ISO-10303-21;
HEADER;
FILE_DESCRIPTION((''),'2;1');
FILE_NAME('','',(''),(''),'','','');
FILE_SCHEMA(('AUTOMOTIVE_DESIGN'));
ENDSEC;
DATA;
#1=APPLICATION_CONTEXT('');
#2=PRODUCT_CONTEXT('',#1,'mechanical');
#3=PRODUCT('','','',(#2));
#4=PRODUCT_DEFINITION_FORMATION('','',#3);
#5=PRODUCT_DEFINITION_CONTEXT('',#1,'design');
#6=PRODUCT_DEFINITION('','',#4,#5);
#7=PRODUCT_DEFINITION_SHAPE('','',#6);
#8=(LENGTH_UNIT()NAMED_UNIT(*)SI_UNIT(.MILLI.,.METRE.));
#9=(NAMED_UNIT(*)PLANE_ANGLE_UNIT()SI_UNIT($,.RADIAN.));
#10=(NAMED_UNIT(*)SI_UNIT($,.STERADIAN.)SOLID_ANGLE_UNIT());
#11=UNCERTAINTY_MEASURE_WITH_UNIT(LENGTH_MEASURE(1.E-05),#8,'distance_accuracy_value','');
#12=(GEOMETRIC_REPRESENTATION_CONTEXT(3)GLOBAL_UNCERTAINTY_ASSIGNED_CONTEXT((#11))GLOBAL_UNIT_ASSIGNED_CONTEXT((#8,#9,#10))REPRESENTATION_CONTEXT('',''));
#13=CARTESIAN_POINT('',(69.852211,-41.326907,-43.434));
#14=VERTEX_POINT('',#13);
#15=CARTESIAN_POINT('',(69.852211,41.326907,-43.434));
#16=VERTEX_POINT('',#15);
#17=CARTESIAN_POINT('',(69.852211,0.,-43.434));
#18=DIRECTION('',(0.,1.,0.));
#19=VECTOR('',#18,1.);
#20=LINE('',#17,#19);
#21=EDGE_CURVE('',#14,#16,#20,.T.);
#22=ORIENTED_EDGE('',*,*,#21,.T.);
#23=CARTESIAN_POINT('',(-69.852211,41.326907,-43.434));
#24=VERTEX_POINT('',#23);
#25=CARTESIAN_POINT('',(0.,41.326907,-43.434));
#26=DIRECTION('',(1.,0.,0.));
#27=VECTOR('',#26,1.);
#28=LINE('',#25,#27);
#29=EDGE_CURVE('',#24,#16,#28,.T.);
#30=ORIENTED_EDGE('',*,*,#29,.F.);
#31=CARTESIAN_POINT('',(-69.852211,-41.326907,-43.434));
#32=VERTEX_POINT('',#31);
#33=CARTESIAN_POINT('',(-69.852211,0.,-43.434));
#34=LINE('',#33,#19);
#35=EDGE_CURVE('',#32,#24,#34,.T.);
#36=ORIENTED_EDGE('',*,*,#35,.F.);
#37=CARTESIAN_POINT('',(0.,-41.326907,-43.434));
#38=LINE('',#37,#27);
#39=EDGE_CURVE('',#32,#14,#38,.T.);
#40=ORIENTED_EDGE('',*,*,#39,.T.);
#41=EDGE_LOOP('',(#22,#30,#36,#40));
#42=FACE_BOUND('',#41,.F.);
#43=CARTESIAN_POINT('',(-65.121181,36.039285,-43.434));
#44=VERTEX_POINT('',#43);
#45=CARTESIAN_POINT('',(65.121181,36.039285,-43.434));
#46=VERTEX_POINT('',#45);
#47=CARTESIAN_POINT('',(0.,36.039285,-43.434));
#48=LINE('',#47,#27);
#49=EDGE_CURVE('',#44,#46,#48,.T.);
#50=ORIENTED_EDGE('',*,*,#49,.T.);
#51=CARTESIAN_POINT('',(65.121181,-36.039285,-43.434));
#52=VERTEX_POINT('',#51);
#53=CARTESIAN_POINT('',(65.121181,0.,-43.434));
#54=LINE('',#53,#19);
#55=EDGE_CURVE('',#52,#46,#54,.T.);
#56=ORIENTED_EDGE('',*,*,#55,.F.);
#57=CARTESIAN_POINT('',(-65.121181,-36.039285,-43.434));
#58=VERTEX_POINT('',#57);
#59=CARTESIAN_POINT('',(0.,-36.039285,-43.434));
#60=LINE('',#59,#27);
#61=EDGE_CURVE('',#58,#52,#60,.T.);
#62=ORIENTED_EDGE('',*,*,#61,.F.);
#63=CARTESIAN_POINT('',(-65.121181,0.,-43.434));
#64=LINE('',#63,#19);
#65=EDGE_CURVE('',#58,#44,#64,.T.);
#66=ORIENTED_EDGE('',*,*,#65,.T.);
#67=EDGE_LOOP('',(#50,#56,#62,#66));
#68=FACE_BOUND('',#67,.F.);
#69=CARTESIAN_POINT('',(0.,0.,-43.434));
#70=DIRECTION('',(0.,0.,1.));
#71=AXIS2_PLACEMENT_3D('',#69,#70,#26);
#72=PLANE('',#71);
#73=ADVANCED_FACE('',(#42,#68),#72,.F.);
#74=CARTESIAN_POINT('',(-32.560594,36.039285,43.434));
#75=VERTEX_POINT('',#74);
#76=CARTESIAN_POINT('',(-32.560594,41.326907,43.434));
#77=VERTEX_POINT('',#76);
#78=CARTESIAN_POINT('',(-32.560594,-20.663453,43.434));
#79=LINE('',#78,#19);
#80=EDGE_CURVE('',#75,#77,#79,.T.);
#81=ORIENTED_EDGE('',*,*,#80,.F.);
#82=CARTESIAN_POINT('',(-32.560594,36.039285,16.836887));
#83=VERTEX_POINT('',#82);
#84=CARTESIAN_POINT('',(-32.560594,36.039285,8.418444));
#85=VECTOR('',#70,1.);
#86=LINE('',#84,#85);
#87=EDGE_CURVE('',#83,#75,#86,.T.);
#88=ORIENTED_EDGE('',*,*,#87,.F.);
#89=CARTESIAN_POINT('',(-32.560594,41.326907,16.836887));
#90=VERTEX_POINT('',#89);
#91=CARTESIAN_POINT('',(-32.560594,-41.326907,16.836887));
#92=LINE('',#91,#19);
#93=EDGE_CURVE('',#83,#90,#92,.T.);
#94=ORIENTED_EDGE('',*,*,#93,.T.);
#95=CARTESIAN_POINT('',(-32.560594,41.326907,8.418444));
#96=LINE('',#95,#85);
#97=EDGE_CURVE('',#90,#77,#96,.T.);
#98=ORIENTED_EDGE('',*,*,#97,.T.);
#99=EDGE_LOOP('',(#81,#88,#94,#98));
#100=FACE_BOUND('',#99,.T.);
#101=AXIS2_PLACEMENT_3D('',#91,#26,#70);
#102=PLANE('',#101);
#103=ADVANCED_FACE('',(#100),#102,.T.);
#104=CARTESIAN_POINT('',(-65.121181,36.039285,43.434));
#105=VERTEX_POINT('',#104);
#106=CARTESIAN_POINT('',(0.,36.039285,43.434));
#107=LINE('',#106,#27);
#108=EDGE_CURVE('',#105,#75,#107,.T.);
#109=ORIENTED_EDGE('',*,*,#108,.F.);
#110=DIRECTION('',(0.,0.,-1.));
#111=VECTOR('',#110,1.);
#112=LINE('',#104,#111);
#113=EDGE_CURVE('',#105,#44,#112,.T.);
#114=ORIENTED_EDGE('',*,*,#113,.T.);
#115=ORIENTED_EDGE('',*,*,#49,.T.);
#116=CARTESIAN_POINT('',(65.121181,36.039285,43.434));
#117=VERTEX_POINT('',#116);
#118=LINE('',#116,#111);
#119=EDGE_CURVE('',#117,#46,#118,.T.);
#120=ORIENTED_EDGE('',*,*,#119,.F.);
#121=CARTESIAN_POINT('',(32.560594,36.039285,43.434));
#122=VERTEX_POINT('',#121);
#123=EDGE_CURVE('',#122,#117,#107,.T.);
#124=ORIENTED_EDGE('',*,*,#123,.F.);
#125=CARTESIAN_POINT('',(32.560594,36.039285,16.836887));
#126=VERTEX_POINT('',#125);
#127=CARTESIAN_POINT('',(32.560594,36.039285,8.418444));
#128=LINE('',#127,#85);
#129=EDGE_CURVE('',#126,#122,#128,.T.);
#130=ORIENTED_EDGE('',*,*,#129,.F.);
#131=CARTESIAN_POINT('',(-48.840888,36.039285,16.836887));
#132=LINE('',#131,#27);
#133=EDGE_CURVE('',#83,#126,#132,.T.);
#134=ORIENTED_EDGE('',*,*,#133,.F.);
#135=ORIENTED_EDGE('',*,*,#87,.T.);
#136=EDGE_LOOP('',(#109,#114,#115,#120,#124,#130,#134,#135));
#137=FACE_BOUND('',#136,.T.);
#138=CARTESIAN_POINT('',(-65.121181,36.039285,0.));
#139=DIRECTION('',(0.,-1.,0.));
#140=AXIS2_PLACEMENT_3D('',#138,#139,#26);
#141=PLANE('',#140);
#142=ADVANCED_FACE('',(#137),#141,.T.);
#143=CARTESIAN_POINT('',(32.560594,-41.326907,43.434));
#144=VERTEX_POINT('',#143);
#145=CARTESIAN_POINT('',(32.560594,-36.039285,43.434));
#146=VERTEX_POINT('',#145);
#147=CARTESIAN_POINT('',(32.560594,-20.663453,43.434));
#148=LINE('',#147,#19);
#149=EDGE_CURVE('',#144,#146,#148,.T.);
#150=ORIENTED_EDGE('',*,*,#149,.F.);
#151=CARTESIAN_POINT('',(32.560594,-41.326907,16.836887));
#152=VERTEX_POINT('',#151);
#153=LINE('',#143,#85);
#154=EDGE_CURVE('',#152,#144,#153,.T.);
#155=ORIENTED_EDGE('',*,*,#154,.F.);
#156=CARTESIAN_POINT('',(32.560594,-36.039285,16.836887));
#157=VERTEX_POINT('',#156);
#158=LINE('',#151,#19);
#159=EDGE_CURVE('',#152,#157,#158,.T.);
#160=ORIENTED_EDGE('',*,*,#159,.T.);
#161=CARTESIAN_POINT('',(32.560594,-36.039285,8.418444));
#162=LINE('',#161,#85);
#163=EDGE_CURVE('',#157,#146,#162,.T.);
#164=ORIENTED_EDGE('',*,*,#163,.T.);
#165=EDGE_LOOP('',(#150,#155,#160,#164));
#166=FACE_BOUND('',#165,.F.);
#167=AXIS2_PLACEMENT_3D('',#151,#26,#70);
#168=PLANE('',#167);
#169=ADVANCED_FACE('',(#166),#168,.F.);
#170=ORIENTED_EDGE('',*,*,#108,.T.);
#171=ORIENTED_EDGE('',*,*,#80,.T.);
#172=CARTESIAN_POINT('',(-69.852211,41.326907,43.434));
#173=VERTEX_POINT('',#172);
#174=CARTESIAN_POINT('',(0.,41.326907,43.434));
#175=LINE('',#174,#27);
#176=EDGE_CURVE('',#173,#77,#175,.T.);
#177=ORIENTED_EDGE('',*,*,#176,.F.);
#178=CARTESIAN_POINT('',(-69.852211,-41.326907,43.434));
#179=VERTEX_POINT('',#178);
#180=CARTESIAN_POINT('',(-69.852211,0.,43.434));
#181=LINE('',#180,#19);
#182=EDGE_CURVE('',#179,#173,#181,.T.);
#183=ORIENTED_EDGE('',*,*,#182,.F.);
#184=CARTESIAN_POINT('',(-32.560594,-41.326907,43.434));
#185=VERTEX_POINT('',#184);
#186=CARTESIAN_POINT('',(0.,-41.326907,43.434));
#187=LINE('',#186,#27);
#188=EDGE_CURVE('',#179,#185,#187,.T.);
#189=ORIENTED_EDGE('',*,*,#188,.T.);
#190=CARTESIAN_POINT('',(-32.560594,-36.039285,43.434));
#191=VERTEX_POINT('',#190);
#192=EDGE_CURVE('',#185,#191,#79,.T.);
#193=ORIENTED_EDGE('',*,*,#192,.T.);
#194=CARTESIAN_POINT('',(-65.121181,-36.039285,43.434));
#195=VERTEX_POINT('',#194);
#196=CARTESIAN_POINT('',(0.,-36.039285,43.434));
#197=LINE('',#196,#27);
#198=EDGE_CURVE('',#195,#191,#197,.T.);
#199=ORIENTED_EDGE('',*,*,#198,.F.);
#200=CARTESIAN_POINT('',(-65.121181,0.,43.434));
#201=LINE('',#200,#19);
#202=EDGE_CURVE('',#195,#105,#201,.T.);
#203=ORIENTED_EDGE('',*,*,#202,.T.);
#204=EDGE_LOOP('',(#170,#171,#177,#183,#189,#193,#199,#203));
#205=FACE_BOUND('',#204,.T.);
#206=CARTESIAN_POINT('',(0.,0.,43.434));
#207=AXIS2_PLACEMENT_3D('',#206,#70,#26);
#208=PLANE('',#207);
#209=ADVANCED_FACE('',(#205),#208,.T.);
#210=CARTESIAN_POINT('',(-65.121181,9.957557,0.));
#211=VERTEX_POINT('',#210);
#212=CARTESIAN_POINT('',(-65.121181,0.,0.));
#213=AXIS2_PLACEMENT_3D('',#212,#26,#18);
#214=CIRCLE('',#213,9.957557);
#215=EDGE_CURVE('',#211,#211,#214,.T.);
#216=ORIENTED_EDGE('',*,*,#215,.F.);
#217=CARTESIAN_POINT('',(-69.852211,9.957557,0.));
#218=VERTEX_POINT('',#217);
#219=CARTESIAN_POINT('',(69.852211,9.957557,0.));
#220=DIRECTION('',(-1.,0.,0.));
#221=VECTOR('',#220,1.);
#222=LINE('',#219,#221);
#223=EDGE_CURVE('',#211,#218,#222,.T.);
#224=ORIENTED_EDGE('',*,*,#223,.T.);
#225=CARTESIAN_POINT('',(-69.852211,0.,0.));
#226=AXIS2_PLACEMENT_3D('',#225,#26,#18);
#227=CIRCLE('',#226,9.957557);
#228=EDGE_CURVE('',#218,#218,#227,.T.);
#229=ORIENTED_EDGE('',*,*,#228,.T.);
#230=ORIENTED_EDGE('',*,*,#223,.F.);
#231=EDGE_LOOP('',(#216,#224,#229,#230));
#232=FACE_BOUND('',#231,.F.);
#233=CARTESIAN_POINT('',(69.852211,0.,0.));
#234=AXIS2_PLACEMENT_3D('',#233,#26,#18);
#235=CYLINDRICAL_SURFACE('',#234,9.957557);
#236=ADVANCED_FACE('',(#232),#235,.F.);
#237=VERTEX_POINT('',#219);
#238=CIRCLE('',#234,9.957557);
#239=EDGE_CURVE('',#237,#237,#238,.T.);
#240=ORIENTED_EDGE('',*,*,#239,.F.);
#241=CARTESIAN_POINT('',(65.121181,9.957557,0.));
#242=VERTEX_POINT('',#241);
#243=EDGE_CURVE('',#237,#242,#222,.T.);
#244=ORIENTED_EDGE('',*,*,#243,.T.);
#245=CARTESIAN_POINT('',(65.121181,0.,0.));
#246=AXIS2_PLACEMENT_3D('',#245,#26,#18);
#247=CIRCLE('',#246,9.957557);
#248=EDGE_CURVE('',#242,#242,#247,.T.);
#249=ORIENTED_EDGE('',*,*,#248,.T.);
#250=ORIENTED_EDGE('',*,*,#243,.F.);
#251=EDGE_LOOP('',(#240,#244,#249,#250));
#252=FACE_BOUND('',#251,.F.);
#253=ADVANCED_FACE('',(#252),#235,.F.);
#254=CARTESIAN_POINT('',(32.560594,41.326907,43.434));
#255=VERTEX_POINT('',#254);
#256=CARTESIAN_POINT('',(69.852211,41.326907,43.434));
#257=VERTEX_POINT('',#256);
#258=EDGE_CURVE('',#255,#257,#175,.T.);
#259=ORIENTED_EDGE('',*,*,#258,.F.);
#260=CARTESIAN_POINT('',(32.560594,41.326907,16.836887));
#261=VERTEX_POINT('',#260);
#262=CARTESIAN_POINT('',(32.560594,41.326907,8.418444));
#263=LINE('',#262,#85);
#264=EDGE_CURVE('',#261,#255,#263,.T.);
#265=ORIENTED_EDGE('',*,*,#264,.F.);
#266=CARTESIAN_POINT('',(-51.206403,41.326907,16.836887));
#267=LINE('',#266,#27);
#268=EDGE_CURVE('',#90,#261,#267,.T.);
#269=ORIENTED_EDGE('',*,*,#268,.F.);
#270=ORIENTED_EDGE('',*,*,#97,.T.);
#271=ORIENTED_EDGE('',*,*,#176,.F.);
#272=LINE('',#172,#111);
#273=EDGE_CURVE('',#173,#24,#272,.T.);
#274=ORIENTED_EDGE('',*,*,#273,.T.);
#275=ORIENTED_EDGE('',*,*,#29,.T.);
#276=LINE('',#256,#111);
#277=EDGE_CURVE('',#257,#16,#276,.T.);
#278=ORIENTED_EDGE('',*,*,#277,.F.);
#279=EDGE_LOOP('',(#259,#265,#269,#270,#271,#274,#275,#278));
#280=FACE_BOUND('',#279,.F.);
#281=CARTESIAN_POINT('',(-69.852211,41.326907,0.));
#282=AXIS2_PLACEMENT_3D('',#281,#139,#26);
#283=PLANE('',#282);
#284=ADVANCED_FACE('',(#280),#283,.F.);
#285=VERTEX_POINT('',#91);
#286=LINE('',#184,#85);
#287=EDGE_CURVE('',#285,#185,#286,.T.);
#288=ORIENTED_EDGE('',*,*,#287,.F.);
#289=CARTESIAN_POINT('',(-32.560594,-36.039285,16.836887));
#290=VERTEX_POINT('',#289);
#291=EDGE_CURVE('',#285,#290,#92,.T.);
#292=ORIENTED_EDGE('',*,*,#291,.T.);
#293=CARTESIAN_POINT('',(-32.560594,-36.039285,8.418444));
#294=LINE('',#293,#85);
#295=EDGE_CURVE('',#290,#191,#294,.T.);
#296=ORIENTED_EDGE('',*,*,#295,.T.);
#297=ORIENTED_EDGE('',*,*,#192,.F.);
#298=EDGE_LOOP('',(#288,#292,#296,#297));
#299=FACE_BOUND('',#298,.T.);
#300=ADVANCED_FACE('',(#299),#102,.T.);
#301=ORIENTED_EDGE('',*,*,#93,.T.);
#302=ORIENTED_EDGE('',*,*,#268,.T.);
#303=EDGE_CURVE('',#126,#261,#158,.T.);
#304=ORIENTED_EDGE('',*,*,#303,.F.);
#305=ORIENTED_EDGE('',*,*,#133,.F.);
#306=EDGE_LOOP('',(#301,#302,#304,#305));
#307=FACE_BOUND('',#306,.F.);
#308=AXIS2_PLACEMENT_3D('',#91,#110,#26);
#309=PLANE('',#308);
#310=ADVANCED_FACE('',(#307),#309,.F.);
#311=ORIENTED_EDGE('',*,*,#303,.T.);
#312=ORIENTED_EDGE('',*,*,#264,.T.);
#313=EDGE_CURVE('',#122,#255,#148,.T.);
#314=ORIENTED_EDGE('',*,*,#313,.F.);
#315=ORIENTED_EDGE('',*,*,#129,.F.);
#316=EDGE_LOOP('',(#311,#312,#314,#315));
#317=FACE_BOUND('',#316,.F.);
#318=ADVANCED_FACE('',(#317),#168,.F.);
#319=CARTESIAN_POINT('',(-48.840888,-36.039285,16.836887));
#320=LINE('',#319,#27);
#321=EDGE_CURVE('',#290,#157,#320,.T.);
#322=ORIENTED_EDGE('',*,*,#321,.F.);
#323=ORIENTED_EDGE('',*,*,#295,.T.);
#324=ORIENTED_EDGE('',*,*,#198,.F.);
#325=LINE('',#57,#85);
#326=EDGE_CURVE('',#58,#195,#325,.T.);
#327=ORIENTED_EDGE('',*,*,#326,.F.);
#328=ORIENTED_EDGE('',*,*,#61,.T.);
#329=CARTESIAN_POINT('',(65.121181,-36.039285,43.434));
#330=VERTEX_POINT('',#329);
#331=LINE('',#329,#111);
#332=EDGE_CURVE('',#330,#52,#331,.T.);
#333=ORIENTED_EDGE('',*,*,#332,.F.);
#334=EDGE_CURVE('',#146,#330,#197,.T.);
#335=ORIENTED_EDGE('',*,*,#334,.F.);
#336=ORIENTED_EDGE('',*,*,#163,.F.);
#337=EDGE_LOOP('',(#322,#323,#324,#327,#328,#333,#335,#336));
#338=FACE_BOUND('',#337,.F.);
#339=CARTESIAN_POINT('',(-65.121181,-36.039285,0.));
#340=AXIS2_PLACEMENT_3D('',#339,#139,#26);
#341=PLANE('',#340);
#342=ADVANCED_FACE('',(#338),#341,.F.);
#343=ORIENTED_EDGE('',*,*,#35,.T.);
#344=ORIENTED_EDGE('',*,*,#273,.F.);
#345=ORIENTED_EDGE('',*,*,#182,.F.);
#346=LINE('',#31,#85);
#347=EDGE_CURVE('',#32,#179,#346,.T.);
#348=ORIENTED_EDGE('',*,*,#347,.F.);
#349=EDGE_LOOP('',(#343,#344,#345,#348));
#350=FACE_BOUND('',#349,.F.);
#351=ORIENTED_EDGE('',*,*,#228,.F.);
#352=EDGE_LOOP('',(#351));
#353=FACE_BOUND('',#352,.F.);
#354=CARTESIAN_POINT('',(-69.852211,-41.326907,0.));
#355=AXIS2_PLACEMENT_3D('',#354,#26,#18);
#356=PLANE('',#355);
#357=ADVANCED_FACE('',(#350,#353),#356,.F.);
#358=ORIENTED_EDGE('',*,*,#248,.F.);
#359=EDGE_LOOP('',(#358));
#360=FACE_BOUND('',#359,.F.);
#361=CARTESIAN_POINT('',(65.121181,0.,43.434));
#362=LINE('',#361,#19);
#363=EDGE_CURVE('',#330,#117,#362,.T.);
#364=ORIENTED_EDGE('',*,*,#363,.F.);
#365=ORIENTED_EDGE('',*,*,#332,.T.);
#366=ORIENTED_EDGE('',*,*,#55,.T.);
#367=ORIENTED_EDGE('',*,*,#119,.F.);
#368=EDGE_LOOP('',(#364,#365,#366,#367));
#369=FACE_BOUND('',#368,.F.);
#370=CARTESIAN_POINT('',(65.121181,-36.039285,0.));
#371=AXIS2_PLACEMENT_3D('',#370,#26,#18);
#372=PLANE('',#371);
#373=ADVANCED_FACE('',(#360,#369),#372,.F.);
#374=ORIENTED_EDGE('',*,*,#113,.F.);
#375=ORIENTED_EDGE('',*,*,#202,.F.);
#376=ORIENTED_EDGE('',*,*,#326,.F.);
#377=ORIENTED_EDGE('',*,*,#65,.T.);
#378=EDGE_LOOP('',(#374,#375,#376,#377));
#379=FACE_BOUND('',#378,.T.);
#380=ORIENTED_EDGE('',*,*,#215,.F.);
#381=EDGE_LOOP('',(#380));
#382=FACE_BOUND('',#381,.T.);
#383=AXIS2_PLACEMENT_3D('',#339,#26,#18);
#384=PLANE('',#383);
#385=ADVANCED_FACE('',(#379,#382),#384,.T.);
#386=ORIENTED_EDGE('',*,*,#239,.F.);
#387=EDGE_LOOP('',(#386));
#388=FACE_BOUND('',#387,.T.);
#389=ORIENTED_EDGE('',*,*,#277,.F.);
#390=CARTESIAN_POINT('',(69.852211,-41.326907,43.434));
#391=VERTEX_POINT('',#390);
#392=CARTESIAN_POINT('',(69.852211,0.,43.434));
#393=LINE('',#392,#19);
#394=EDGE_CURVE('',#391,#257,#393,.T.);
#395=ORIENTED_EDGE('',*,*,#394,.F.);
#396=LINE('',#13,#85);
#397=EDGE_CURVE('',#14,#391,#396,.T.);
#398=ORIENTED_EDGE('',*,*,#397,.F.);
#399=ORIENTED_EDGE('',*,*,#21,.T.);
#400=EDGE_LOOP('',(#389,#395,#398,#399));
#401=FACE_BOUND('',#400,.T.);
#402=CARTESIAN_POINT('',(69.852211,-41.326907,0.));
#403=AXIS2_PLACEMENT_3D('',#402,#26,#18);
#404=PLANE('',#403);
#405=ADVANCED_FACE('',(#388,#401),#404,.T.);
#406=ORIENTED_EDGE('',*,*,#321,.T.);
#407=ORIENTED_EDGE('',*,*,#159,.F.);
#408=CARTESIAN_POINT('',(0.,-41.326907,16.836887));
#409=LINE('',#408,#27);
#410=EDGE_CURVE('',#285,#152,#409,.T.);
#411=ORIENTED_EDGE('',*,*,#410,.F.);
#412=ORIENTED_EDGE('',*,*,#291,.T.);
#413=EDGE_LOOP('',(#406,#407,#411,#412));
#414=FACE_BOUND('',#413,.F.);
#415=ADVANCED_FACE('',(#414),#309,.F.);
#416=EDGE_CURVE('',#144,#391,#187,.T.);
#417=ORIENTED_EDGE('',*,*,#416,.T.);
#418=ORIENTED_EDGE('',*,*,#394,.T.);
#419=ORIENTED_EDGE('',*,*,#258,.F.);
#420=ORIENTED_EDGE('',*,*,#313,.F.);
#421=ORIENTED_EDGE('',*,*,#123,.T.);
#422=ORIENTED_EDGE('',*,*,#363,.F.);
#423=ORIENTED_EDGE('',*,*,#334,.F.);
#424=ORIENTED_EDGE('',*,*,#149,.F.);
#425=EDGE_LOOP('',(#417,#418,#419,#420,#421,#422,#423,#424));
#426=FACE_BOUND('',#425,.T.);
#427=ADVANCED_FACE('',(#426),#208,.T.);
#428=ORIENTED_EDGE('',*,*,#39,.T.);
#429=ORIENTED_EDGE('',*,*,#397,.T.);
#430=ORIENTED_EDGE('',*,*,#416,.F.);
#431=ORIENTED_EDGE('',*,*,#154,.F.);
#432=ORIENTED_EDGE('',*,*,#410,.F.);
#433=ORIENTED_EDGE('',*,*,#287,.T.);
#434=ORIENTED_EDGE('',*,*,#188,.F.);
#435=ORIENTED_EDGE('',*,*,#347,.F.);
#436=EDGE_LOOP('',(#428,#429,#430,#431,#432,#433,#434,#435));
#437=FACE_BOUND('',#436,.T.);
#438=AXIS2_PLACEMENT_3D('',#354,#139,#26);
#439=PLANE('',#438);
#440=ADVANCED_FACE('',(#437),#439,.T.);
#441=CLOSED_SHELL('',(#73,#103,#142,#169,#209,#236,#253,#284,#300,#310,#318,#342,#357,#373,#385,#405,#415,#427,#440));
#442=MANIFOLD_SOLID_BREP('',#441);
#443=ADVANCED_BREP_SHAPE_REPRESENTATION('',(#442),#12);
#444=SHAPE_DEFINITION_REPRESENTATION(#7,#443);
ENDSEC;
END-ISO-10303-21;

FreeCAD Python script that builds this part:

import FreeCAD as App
import Part
import Sketcher
Q = App.Units.Quantity

doc = App.newDocument("Part")
body = doc.addObject("PartDesign::Body", "Body")

sketch1 = body.newObject("Sketcher::SketchObject", "Sketch")
sketch1.AttachmentSupport = (doc.getObject("XY_Plane"), [""])
sketch1.MapMode = "FlatFace"
sketch1.addGeometry([
    Part.LineSegment(App.Vector(-69.852211, 41.326907, 0), App.Vector(-69.852211, -41.326907, 0)),
    Part.LineSegment(App.Vector(-69.852211, -41.326907, 0), App.Vector(69.852211, -41.326907, 0)),
    Part.LineSegment(App.Vector(69.852211, -41.326907, 0), App.Vector(69.852211, 41.326907, 0)),
    Part.LineSegment(App.Vector(69.852211, 41.326907, 0), App.Vector(-69.852211, 41.326907, 0)),
    Part.LineSegment(App.Vector(65.121181, -36.039285, 0), App.Vector(-65.121181, -36.039285, 0)),
    Part.LineSegment(App.Vector(-65.121181, -36.039285, 0), App.Vector(-65.121181, 36.039285, 0)),
    Part.LineSegment(App.Vector(-65.121181, 36.039285, 0), App.Vector(65.121181, 36.039285, 0)),
    Part.LineSegment(App.Vector(65.121181, 36.039285, 0), App.Vector(65.121181, -36.039285, 0)),
], False)
sketch1.addConstraint([
    Sketcher.Constraint("Coincident", 0, 2, 1, 1),
    Sketcher.Constraint("Coincident", 1, 2, 2, 1),
    Sketcher.Constraint("Coincident", 2, 2, 3, 1),
    Sketcher.Constraint("Coincident", 3, 2, 0, 1),
    Sketcher.Constraint("Coincident", 4, 2, 5, 1),
    Sketcher.Constraint("Coincident", 5, 2, 6, 1),
    Sketcher.Constraint("Coincident", 6, 2, 7, 1),
    Sketcher.Constraint("Coincident", 7, 2, 4, 1),
    Sketcher.Constraint("Vertical", 0),
    Sketcher.Constraint("Horizontal", 1),
    Sketcher.Constraint("Vertical", 2),
    Sketcher.Constraint("Horizontal", 3),
    Sketcher.Constraint("Horizontal", 4),
    Sketcher.Constraint("Vertical", 5),
    Sketcher.Constraint("Horizontal", 6),
    Sketcher.Constraint("Vertical", 7),
    Sketcher.Constraint("Symmetric", 0, 2, 2, 2, -1, 1),
    Sketcher.Constraint("Symmetric", 4, 2, 6, 2, -1, 1),
    Sketcher.Constraint("DistanceX", 1, 1, 1, 2, 139.704422),
    Sketcher.Constraint("DistanceY", 5, 1, 5, 2, 72.07857),
    Sketcher.Constraint("DistanceX", 4, 2, 4, 1, 130.242362),
    Sketcher.Constraint("DistanceY", 0, 2, 0, 1, 82.653814),
])
pad1 = body.newObject("PartDesign::Pad", "Pad")
pad1.Profile = sketch1
pad1.Length = Q("3.42 in")
pad1.Midplane = True

sketch2 = body.newObject("Sketcher::SketchObject", "Sketch001")
sketch2.AttachmentSupport = (doc.getObject("YZ_Plane"), [""])
sketch2.MapMode = "FlatFace"
sketch2.AttachmentOffset = App.Placement(App.Vector(0, 0, 69.852211), App.Rotation())
sketch2.addGeometry(Part.Circle(App.Vector(0, 0, 0), App.Vector(0, 0, 1), 9.957557), False)
sketch2.addConstraint([
    Sketcher.Constraint("Coincident", 0, 3, -1, 1),
    Sketcher.Constraint("Diameter", 0, 19.915114),
])
pocket1 = body.newObject("PartDesign::Pocket", "Pocket")
pocket1.Profile = sketch2
pocket1.Length = Q("6.71 in")

sketch3 = body.newObject("Sketcher::SketchObject", "Sketch002")
sketch3.AttachmentSupport = (doc.getObject("XZ_Plane"), [""])
sketch3.MapMode = "FlatFace"
sketch3.AttachmentOffset = App.Placement(App.Vector(0, 0, 41.326907), App.Rotation())
sketch3.addGeometry([
    Part.LineSegment(App.Vector(-32.560594, 70.031113, 0), App.Vector(-32.560594, 16.836887, 0)),
    Part.LineSegment(App.Vector(-32.560594, 16.836887, 0), App.Vector(32.560594, 16.836887, 0)),
    Part.LineSegment(App.Vector(32.560594, 16.836887, 0), App.Vector(32.560594, 70.031113, 0)),
    Part.LineSegment(App.Vector(32.560594, 70.031113, 0), App.Vector(-32.560594, 70.031113, 0)),
], False)
sketch3.addConstraint([
    Sketcher.Constraint("Coincident", 0, 2, 1, 1),
    Sketcher.Constraint("Coincident", 1, 2, 2, 1),
    Sketcher.Constraint("Coincident", 2, 2, 3, 1),
    Sketcher.Constraint("Coincident", 3, 2, 0, 1),
    Sketcher.Constraint("Vertical", 0),
    Sketcher.Constraint("Horizontal", 1),
    Sketcher.Constraint("Vertical", 2),
    Sketcher.Constraint("Horizontal", 3),
    Sketcher.Constraint("DistanceX", 1, 1, 1, 2, 65.121188),
    Sketcher.Constraint("DistanceY", 0, 2, 0, 1, 53.194226),
    Sketcher.Constraint("DistanceX", 0, 2, -1, 1, 32.560594),
    Sketcher.Constraint("DistanceY", -1, 1, 0, 2, 16.836887),
])
pocket2 = body.newObject("PartDesign::Pocket", "Pocket001")
pocket2.Profile = sketch3
pocket2.Length = Q("4.38 in")

doc.recompute()
